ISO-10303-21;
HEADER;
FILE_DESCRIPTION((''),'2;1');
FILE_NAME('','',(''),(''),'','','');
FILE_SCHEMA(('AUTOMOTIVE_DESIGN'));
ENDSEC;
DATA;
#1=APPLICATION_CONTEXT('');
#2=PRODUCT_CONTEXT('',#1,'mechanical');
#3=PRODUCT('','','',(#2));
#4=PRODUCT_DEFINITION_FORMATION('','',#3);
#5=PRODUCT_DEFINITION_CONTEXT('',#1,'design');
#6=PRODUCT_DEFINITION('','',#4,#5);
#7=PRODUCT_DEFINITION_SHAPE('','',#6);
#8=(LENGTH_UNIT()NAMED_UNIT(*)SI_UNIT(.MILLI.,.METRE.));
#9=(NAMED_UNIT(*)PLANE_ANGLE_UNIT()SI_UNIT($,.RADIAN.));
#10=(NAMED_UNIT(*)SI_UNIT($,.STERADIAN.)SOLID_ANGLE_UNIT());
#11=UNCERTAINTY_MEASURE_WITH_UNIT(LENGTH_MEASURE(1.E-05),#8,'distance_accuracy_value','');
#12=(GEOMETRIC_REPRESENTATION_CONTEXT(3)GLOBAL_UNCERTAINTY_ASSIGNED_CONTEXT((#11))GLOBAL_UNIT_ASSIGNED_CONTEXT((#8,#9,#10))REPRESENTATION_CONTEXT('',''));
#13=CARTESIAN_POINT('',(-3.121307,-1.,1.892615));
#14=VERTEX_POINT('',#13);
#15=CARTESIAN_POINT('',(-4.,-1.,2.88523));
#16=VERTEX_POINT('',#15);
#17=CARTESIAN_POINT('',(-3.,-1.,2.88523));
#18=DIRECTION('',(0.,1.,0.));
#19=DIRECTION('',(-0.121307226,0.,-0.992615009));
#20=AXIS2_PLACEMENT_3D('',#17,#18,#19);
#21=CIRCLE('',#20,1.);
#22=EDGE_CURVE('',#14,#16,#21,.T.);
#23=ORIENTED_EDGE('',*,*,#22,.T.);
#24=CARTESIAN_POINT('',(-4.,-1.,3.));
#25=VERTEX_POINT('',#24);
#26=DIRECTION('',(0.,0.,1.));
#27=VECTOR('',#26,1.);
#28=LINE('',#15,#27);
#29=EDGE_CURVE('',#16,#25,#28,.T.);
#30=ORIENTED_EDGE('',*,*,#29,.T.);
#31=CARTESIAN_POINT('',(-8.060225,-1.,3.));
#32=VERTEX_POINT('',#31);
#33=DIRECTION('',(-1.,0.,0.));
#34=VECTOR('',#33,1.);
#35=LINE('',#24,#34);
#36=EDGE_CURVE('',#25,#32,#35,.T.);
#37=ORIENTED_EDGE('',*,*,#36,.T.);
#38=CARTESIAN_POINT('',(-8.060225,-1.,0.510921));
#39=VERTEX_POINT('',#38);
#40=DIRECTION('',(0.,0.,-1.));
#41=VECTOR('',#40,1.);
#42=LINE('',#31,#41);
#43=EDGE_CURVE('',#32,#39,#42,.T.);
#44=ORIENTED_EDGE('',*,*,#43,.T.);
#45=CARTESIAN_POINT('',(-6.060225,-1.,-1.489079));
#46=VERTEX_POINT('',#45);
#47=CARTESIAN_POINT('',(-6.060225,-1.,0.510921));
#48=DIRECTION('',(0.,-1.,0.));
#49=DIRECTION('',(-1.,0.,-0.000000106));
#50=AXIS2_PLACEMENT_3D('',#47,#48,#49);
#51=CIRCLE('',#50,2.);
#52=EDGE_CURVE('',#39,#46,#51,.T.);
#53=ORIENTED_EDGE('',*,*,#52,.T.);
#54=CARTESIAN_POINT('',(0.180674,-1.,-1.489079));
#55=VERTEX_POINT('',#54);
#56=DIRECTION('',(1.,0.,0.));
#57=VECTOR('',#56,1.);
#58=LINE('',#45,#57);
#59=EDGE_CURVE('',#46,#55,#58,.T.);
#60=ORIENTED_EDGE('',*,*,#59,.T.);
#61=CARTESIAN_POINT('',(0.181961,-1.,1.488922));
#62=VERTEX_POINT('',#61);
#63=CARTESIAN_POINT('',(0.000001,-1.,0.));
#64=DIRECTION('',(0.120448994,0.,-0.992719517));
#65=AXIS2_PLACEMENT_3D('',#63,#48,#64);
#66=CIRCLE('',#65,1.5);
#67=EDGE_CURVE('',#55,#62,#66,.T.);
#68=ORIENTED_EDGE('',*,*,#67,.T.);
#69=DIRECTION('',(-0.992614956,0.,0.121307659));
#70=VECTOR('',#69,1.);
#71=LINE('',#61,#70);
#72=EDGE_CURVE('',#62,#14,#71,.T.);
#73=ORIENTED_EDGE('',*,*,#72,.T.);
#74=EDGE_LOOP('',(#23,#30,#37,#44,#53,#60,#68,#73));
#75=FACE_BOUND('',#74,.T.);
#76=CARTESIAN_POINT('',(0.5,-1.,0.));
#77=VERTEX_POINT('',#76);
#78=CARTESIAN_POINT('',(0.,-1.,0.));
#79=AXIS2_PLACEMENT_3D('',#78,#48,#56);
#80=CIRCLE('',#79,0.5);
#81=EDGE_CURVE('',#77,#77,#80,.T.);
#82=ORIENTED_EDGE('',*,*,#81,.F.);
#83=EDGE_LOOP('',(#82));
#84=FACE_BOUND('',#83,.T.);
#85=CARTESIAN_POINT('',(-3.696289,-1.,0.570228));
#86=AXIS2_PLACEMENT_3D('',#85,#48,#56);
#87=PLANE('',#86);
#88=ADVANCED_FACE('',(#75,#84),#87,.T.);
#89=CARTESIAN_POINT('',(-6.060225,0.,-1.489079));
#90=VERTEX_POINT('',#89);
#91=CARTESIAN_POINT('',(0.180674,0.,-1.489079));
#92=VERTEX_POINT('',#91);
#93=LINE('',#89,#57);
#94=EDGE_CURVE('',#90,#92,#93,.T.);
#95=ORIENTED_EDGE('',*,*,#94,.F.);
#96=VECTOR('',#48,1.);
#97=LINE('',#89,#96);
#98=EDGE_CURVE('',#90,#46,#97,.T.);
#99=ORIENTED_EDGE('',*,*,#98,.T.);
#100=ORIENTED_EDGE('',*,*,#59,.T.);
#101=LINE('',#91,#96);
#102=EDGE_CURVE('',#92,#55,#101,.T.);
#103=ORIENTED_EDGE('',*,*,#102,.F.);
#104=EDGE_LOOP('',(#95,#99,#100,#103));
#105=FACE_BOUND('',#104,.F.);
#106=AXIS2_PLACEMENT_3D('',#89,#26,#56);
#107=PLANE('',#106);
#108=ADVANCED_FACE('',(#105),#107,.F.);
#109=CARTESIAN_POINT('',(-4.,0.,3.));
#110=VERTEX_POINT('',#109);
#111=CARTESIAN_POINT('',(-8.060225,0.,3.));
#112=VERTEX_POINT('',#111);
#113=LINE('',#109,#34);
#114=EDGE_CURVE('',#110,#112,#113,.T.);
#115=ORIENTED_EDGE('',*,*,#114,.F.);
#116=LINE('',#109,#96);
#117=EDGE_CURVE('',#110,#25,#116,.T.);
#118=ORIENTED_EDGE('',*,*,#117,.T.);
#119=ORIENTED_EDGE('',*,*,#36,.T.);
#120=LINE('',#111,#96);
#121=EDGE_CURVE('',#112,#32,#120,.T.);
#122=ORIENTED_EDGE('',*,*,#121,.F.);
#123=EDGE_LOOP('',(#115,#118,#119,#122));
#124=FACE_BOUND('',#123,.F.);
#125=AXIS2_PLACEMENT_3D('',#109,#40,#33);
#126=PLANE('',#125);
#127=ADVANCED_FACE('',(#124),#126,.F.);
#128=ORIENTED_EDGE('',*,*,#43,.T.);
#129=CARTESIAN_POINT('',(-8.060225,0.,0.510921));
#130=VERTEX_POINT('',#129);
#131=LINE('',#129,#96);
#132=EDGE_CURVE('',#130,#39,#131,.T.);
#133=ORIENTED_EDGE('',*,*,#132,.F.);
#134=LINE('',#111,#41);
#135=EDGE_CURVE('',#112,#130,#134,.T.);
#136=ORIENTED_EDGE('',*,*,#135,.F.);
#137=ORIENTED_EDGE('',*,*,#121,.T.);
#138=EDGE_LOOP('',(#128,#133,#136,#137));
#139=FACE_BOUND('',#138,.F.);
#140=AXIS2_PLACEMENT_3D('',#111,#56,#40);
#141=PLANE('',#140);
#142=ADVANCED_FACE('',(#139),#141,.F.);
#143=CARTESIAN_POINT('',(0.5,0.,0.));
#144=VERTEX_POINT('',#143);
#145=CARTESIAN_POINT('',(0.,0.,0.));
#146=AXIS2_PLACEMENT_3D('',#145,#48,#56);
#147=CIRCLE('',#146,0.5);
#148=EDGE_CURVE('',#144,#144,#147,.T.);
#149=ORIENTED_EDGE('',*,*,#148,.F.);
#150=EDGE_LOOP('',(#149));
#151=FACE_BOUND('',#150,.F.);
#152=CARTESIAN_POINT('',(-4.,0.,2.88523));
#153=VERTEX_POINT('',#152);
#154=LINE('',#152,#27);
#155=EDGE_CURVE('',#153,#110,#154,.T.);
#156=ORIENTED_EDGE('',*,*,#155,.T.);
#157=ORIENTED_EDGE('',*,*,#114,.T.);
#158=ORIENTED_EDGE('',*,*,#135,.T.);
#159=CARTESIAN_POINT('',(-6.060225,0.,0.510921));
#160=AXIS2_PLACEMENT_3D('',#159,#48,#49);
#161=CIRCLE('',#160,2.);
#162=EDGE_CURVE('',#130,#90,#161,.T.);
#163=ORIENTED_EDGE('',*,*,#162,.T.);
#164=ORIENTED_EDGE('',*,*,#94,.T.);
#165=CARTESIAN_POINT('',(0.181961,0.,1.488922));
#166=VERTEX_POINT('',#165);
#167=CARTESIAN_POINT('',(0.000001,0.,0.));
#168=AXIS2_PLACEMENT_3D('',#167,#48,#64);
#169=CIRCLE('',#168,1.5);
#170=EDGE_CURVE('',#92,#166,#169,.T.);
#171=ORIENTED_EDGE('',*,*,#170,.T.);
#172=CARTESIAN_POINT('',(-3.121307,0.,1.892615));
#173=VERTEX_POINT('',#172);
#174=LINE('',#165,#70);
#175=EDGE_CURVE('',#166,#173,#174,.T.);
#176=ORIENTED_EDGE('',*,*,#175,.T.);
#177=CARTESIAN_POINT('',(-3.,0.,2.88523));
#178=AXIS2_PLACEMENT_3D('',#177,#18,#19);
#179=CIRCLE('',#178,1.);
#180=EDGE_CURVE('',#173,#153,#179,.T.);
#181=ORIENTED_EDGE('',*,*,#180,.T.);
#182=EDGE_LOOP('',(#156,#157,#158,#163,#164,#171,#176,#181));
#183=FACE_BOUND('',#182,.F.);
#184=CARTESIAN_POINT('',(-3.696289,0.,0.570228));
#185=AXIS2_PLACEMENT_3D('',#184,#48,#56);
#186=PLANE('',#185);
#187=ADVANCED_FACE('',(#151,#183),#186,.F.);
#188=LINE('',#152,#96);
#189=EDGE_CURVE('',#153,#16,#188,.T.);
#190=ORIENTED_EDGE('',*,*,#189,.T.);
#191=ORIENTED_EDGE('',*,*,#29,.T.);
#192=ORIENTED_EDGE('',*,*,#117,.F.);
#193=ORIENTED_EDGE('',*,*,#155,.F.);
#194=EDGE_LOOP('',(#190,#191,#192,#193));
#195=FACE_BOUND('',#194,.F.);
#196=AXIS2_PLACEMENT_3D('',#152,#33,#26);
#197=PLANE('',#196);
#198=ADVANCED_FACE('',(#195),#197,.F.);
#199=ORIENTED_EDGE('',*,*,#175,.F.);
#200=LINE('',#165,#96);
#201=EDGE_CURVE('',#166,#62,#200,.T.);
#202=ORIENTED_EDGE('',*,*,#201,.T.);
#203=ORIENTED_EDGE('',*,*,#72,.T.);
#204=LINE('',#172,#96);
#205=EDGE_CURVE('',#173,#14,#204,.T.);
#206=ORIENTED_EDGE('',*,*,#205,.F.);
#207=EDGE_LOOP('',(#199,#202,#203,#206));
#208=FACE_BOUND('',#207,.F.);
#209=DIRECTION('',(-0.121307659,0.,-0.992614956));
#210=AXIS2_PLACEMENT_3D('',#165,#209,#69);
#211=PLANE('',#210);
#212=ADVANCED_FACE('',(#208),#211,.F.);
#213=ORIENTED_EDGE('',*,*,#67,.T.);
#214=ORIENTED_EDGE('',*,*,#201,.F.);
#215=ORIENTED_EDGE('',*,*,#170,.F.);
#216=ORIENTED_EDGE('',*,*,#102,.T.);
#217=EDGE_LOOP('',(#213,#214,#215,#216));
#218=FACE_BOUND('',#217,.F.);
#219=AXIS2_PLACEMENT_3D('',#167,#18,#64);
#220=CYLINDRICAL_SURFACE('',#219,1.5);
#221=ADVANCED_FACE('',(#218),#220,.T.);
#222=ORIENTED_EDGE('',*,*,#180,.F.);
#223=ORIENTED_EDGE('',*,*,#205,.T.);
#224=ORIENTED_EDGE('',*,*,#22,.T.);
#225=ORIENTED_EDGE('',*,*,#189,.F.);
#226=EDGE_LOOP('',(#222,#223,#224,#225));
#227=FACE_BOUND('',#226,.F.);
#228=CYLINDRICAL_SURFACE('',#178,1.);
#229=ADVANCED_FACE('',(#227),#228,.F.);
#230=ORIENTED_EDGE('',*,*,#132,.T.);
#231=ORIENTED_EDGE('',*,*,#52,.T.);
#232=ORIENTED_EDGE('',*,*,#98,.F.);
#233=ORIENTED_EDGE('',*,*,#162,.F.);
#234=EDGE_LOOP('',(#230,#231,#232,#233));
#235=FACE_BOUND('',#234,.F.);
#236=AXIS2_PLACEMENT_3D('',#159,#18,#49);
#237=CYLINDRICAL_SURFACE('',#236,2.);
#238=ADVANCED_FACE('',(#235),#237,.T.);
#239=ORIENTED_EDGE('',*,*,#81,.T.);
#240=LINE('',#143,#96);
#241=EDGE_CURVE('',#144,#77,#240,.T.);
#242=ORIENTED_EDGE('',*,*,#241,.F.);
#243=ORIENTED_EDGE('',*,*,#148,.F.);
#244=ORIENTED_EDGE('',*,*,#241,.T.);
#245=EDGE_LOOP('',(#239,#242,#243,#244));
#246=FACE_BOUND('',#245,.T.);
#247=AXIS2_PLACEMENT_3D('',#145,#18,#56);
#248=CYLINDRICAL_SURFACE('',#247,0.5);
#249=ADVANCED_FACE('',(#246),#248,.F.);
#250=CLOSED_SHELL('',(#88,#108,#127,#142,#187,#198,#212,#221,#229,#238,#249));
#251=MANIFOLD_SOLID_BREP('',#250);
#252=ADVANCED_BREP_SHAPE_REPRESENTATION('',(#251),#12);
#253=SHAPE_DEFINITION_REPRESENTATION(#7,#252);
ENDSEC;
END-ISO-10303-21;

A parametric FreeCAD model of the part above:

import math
import FreeCAD as App
import Part
import Sketcher
Q = App.Units.Quantity

doc = App.newDocument("Part")
body = doc.addObject("PartDesign::Body", "Body")

# Sketch on XZ plane
sketch1 = doc.addObject("Sketcher::SketchObject", "Sketch")
body.addObject(sketch1)
sketch1.AttachmentSupport = (doc.XZ_Plane, [""])
sketch1.MapMode = "FlatFace"
sketch1.addGeometry([
    Part.LineSegment(App.Vector(-6.06, -1.49, 0), App.Vector(0.18, -1.49, 0)),  # 0
    Part.ArcOfCircle(Part.Circle(App.Vector(0, 0, 0), App.Vector(0, 0, 1), 1.5), math.radians(-83), math.radians(83)),  # 1
    Part.LineSegment(App.Vector(0.18, 1.49, 0), App.Vector(-3.12, 1.89, 0)),  # 2
    Part.ArcOfCircle(Part.Circle(App.Vector(-3, 2.89, 0), App.Vector(0, 0, 1), 1), math.radians(-180), math.radians(-97)),  # 3
    Part.LineSegment(App.Vector(-4, 2.89, 0), App.Vector(-4, 3, 0)),  # 4
    Part.LineSegment(App.Vector(-4, 3, 0), App.Vector(-8.06, 3, 0)),  # 5
    Part.LineSegment(App.Vector(-8.06, 3, 0), App.Vector(-8.06, 0.51, 0)),  # 6
    Part.ArcOfCircle(Part.Circle(App.Vector(-6.06, 0.51, 0), App.Vector(0, 0, 1), 2), math.radians(-180), math.radians(-90)),  # 7
    Part.Circle(App.Vector(0, 0, 0), App.Vector(0, 0, 1), 0.5),  # 8
], False)
sketch1.addConstraint([
    Sketcher.Constraint("Coincident", 0, 2, 1, 1),
    Sketcher.Constraint("Tangent", 1, 2, 2, 1),
    Sketcher.Constraint("Tangent", 2, 2, 3, 2),
    Sketcher.Constraint("Tangent", 3, 1, 4, 1),
    Sketcher.Constraint("Coincident", 4, 2, 5, 1),
    Sketcher.Constraint("Coincident", 5, 2, 6, 1),
    Sketcher.Constraint("Tangent", 6, 2, 7, 1),
    Sketcher.Constraint("Tangent", 7, 2, 0, 1),
    Sketcher.Constraint("Horizontal", 0),
    Sketcher.Constraint("Vertical", 4),
    Sketcher.Constraint("Horizontal", 5),
    Sketcher.Constraint("Vertical", 6),
    Sketcher.Constraint("Coincident", 1, 3, -1, 1),
    Sketcher.Constraint("Coincident", 8, 3, -1, 1),
    Sketcher.Constraint("Diameter", 8, Q("1 mm")),
    Sketcher.Constraint("Radius", 3, Q("1 mm")),
    Sketcher.Constraint("Radius", 7, Q("2 mm")),
    Sketcher.Constraint("Radius", 1, Q("1.5 mm")),
    Sketcher.Constraint("DistanceX", 3, 3, -1, 1, Q("3 mm")),
    Sketcher.Constraint("DistanceY", -1, 1, 4, 2, Q("3 mm")),
    Sketcher.Constraint("DistanceX", 0, 1, 0, 2, Q("6.240899 mm")),
    Sketcher.Constraint("DistanceY", 0, 2, 1, 2, Q("2.978001 mm")),
    Sketcher.Constraint("DistanceY", 4, 1, 4, 2, Q("0.11477 mm")),
])
pad1 = doc.addObject("PartDesign::Pad", "Pad")
body.addObject(pad1)
pad1.Profile = sketch1
pad1.Length = 1

doc.recompute()
